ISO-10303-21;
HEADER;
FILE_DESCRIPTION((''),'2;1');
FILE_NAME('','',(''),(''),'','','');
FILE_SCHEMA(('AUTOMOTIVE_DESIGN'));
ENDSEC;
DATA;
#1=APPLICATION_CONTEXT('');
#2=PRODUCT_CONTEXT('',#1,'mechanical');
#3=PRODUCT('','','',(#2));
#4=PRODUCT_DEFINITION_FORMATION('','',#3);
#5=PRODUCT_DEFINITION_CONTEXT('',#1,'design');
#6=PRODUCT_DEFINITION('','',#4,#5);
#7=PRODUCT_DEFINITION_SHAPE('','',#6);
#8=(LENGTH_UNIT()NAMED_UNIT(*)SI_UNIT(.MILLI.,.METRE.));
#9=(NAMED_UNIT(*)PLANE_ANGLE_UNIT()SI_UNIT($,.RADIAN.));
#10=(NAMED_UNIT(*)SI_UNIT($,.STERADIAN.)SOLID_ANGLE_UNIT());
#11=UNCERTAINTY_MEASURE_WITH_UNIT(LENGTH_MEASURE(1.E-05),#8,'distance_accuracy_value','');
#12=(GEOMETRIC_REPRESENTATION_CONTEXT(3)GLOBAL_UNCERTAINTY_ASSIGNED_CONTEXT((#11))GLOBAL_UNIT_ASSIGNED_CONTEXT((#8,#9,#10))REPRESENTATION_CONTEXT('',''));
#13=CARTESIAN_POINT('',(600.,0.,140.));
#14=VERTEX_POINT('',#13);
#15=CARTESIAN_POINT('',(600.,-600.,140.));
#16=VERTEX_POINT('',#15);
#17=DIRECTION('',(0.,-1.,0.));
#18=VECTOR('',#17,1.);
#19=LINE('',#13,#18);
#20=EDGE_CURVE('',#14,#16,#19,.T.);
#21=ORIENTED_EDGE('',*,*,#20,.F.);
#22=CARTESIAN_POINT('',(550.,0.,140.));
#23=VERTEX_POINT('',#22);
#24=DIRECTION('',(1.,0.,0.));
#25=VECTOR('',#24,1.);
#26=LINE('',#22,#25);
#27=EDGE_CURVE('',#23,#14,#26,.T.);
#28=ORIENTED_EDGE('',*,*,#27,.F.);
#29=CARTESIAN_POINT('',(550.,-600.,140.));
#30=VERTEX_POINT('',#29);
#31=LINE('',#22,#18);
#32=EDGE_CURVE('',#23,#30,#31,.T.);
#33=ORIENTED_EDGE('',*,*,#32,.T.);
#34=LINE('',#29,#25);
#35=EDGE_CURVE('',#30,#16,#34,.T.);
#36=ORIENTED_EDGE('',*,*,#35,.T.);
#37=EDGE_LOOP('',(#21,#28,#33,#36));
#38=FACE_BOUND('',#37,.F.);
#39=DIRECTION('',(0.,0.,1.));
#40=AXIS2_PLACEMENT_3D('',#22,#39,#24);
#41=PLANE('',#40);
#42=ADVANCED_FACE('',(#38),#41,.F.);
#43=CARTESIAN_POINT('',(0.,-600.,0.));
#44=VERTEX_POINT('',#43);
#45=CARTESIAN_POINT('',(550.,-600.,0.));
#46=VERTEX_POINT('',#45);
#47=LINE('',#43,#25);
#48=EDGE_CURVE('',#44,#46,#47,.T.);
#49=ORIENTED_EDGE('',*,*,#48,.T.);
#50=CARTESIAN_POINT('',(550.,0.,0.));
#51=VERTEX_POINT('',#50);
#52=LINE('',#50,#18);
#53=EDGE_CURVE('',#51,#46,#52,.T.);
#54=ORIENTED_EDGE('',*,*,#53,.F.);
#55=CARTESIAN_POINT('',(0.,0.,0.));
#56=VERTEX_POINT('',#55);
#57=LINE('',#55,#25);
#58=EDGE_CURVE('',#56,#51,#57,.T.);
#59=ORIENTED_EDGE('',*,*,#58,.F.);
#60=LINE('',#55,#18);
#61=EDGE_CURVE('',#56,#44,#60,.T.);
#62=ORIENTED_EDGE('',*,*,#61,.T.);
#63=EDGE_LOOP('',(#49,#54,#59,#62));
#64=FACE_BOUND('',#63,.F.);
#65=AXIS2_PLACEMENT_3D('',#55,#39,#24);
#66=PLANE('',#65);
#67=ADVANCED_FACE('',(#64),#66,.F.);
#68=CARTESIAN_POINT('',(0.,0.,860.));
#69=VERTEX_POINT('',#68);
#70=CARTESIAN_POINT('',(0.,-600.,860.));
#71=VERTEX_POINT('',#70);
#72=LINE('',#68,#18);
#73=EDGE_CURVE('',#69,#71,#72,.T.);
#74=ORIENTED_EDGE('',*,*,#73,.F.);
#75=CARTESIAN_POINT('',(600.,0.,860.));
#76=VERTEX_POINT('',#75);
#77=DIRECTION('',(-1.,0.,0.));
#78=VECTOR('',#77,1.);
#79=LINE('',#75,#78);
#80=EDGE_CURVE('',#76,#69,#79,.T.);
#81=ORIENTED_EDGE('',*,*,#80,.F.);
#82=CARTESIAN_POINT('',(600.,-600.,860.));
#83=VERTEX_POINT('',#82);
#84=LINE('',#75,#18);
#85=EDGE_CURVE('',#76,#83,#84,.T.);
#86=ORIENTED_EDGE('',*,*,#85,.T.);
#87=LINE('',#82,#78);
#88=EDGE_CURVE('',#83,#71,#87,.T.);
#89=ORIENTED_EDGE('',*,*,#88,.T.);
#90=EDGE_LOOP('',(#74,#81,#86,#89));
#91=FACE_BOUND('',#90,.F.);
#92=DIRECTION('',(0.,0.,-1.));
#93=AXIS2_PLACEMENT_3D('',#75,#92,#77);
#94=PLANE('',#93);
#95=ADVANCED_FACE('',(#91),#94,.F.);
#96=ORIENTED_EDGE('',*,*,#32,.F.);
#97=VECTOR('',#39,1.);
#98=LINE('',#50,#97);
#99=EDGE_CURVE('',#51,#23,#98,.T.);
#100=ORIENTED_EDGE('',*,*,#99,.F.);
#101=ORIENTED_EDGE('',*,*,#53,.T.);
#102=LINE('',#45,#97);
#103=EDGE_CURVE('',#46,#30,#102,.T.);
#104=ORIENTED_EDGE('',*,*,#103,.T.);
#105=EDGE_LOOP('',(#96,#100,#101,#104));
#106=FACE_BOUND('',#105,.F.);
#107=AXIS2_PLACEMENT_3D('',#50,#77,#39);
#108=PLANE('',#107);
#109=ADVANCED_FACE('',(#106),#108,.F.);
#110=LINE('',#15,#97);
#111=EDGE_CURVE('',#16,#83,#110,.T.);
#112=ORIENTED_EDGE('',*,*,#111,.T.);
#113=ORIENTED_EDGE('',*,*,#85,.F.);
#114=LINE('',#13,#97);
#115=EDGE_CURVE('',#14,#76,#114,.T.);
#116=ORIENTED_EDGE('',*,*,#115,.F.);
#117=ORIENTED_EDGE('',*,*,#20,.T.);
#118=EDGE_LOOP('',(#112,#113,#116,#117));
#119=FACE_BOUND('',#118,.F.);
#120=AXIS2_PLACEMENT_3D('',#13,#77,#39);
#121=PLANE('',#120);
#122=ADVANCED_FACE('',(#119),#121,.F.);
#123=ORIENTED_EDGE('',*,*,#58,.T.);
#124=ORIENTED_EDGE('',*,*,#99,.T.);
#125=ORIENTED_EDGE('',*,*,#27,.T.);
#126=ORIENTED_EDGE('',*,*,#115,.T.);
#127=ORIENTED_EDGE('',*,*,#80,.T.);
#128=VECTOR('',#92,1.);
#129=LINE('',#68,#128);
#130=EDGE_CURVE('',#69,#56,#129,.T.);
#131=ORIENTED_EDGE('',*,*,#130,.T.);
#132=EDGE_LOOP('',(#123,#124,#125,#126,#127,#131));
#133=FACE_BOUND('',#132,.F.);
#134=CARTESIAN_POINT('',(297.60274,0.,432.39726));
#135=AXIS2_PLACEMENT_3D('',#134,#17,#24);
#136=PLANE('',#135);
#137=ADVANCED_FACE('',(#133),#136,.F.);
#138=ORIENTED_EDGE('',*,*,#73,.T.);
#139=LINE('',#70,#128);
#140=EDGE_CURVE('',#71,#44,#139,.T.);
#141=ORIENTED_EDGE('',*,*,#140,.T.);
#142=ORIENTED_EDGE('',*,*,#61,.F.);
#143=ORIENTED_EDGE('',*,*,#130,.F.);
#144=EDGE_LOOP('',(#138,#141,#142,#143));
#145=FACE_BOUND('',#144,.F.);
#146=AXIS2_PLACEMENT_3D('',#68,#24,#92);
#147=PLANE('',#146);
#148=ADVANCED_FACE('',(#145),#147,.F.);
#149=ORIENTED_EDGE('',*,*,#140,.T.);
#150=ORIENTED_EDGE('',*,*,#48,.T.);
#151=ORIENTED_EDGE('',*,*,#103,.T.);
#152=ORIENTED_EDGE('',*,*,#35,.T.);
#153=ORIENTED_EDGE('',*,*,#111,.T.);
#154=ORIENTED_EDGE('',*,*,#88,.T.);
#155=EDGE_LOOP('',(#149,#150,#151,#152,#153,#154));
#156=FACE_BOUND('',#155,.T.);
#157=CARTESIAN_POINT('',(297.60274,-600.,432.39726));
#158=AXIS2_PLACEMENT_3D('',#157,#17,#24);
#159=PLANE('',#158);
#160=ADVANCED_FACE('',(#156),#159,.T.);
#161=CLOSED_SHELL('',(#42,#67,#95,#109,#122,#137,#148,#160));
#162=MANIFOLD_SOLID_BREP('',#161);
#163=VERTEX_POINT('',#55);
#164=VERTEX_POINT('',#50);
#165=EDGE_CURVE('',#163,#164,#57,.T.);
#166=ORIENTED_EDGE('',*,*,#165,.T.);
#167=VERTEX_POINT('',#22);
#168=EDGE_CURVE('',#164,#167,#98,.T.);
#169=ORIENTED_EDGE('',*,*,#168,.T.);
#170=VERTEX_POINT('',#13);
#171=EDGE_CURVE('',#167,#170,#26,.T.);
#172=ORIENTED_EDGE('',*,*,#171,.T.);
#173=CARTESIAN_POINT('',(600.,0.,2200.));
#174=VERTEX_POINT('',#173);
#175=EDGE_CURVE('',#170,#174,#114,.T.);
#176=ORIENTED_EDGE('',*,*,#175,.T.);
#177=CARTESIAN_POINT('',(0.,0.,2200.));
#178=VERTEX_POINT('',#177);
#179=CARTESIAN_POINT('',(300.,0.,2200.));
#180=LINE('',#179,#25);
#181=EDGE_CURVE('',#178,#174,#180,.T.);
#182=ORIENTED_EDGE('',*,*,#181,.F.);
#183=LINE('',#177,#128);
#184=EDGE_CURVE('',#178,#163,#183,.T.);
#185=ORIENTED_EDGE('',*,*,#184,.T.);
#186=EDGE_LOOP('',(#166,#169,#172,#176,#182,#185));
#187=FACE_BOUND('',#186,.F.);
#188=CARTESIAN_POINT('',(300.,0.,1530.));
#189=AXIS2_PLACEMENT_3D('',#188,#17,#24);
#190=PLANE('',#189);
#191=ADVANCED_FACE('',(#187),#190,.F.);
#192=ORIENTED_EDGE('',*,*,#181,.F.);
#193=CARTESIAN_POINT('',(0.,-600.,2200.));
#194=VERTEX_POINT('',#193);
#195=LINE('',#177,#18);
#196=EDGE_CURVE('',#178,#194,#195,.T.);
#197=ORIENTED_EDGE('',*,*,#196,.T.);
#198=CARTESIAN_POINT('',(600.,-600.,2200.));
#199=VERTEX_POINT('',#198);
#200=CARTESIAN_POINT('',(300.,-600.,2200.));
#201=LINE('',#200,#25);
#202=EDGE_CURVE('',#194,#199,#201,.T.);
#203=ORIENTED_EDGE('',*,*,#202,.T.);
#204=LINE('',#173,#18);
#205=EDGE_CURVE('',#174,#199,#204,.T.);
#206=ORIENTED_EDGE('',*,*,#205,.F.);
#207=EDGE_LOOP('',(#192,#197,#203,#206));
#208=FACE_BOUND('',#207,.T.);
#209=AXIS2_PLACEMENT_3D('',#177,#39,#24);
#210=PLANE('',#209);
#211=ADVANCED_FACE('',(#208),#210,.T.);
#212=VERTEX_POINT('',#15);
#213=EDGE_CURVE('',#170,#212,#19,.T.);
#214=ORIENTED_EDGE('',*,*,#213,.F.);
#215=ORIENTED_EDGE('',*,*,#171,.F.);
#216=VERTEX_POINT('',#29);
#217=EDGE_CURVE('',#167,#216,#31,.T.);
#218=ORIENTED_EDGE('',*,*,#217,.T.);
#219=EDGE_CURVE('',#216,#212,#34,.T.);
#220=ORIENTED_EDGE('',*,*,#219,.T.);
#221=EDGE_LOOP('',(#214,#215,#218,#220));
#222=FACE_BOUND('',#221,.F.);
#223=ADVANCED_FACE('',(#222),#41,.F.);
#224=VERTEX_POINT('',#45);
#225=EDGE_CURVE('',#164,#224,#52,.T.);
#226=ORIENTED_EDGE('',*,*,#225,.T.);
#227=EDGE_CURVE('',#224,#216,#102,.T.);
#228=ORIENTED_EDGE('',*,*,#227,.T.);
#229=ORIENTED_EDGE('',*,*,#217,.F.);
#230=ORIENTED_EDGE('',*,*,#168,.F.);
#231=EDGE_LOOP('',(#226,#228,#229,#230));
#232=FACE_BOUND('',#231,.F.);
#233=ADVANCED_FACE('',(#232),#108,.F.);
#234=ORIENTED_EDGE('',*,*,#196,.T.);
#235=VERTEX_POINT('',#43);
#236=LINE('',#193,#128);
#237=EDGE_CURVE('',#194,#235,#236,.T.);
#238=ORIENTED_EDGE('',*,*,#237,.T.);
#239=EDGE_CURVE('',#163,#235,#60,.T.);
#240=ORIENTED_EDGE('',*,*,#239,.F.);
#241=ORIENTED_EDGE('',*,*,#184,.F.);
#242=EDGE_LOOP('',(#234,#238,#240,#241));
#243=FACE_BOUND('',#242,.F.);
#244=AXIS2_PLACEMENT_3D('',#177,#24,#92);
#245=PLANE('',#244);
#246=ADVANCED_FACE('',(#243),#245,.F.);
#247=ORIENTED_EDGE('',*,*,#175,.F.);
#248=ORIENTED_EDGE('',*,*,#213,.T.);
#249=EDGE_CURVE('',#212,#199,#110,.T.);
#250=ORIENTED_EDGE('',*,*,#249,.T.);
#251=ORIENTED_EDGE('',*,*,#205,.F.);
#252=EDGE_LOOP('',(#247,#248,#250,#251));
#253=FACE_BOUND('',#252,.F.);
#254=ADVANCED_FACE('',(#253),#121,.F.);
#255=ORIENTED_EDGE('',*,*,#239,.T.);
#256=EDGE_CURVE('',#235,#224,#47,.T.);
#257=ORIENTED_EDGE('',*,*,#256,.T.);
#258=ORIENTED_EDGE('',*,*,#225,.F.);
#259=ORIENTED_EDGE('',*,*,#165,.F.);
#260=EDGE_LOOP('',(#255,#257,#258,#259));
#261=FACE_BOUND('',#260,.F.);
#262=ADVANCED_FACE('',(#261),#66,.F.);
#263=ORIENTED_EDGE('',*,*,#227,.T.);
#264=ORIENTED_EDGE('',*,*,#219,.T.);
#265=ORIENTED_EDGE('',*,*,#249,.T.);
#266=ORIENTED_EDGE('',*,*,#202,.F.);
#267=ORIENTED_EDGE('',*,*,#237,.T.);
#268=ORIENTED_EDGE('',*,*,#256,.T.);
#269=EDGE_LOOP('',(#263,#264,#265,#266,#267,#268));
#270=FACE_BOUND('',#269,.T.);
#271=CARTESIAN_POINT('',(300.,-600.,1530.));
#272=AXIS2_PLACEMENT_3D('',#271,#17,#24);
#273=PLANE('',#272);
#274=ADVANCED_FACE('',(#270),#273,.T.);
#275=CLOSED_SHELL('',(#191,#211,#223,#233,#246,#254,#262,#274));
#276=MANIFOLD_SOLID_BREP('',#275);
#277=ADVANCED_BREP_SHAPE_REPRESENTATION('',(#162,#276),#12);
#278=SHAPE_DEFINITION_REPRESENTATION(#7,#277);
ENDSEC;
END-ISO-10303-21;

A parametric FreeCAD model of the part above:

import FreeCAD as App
import Part
import Sketcher

V = App.Vector


def add_polygon(sketch, points):
    """Adds a closed chain of lines whose ends are joined by coincident constraints."""
    first, n = sketch.GeometryCount, len(points)
    for a, b in zip(points, points[1:] + points[:1]):
        sketch.addGeometry(Part.LineSegment(App.Vector(*a, 0), App.Vector(*b, 0)), False)
    for i in range(n):
        sketch.addConstraint(Sketcher.Constraint("Coincident", first + i, 2, first + (i + 1) % n, 1))

doc = App.newDocument("Part")
body = doc.addObject("PartDesign::Body", "Body")

sketch1 = body.newObject("Sketcher::SketchObject", "Sketch")
sketch1.AttachmentSupport = (doc.getObject("XZ_Plane"), [""])
sketch1.MapMode = "FlatFace"
add_polygon(sketch1, [(0, 860), (0, 0), (550, 0), (550, 140), (600, 140), (600, 860)])
sketch1.addConstraint([
    Sketcher.Constraint("Vertical", 0),
    Sketcher.Constraint("Horizontal", 1),
    Sketcher.Constraint("Vertical", 2),
    Sketcher.Constraint("Horizontal", 3),
    Sketcher.Constraint("Vertical", 4),
    Sketcher.Constraint("Horizontal", 5),
    Sketcher.Constraint("Coincident", 0, 2, -1, 1),
    Sketcher.Constraint("DistanceX", 1, 1, 1, 2, 550.0),
    Sketcher.Constraint("DistanceX", 3, 1, 3, 2, 50.0),
    Sketcher.Constraint("DistanceY", 0, 2, 0, 1, 860.0),
    Sketcher.Constraint("DistanceY", 2, 1, 2, 2, 140.0),
])
pad1 = body.newObject("PartDesign::Pad", "Pad")
pad1.Profile = sketch1
pad1.Length = 600
body2 = doc.addObject("PartDesign::Body", "Body001")

sketch2 = body2.newObject("Sketcher::SketchObject", "Sketch001")
sketch2.AttachmentSupport = (doc.getObject("XZ_Plane001"), [""])
sketch2.MapMode = "FlatFace"
add_polygon(sketch2, [(0, 2200), (0, 0), (550, 0), (550, 140), (600, 140), (600, 2200)])
sketch2.addConstraint([
    Sketcher.Constraint("Vertical", 0),
    Sketcher.Constraint("Horizontal", 1),
    Sketcher.Constraint("Vertical", 2),
    Sketcher.Constraint("Horizontal", 3),
    Sketcher.Constraint("Vertical", 4),
    Sketcher.Constraint("Horizontal", 5),
    Sketcher.Constraint("Coincident", 0, 2, -1, 1),
    Sketcher.Constraint("DistanceX", 1, 1, 1, 2, 550.0),
    Sketcher.Constraint("DistanceX", 3, 1, 3, 2, 50.0),
    Sketcher.Constraint("DistanceY", 0, 2, 0, 1, 2200.0),
    Sketcher.Constraint("DistanceY", 2, 1, 2, 2, 140.0),
])
pad2 = body2.newObject("PartDesign::Pad", "Pad001")
pad2.Profile = sketch2
pad2.Length = 600

doc.recompute()
